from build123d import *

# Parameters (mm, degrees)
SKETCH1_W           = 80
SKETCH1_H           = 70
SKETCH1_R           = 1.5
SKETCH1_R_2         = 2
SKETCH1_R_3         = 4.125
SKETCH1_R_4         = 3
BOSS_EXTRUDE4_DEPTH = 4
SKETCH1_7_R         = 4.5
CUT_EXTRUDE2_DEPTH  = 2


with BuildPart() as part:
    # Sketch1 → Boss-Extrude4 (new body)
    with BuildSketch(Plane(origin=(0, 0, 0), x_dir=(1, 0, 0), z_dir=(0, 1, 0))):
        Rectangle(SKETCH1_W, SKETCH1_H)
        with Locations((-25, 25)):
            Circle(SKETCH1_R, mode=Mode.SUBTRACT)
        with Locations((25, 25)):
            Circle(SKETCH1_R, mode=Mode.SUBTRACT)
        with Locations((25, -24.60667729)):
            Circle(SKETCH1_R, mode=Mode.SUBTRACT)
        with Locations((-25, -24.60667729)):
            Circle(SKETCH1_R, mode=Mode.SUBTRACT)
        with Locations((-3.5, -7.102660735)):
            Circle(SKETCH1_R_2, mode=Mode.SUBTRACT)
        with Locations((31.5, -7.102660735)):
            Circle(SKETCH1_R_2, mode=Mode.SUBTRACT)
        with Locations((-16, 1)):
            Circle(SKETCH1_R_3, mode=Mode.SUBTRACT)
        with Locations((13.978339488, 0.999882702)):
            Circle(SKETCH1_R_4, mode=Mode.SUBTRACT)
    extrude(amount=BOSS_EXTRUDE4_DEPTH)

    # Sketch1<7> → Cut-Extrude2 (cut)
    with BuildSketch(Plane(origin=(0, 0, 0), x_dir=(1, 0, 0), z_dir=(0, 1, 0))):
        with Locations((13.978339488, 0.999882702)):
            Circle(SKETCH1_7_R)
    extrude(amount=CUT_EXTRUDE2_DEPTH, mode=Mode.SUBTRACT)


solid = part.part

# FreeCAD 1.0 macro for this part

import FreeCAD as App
import Part
import Sketcher

doc = App.newDocument("Part")
body = doc.addObject("PartDesign::Body", "Body")

# Sketch on XZ plane
sketch1 = body.newObject("Sketcher::SketchObject", "Sketch")
sketch1.AttachmentSupport = (doc.getObject("XZ_Plane"), [""])
sketch1.MapMode = "FlatFace"
sketch1.addGeometry([
    Part.LineSegment(App.Vector(-40, -35, 0), App.Vector(-40, 35, 0)),  # 0
    Part.LineSegment(App.Vector(-40, 35, 0), App.Vector(40, 35, 0)),  # 1
    Part.LineSegment(App.Vector(40, 35, 0), App.Vector(40, -35, 0)),  # 2
    Part.LineSegment(App.Vector(40, -35, 0), App.Vector(-40, -35, 0)),  # 3
    Part.Circle(App.Vector(-25, 24.6, 0), App.Vector(0, 0, 1), 1.5),  # 4
    Part.Circle(App.Vector(-3.5, 7.1, 0), App.Vector(0, 0, 1), 2),  # 5
    Part.Circle(App.Vector(25, 24.6, 0), App.Vector(0, 0, 1), 1.5),  # 6
    Part.Circle(App.Vector(31.5, 7.1, 0), App.Vector(0, 0, 1), 2),  # 7
    Part.Circle(App.Vector(-16, -1, 0), App.Vector(0, 0, 1), 4.1),  # 8
    Part.Circle(App.Vector(-25, -25, 0), App.Vector(0, 0, 1), 1.5),  # 9
    Part.Circle(App.Vector(14, -1, 0), App.Vector(0, 0, 1), 3),  # 10
    Part.Circle(App.Vector(25, -25, 0), App.Vector(0, 0, 1), 1.5),  # 11
], False)
sketch1.addConstraint([
    Sketcher.Constraint("Coincident", 0, 2, 1, 1),
    Sketcher.Constraint("Coincident", 1, 2, 2, 1),
    Sketcher.Constraint("Coincident", 2, 2, 3, 1),
    Sketcher.Constraint("Coincident", 3, 2, 0, 1),
    Sketcher.Constraint("Vertical", 0),
    Sketcher.Constraint("Horizontal", 1),
    Sketcher.Constraint("Vertical", 2),
    Sketcher.Constraint("Horizontal", 3),
    Sketcher.Constraint("Equal", 4, 6),
    Sketcher.Constraint("Equal", 5, 7),
    Sketcher.Constraint("Equal", 6, 9),
    Sketcher.Constraint("Equal", 9, 11),
    Sketcher.Constraint("Symmetric", 0, 2, 2, 2, -1, 1),
    Sketcher.Constraint("Symmetric", 4, 3, 6, 3, -2),
    Sketcher.Constraint("Symmetric", 9, 3, 11, 3, -2),
    Sketcher.Constraint("Horizontal", 5, 3, 7, 3),
    Sketcher.Constraint("Vertical", 4, 3, 9, 3),
    Sketcher.Constraint("Diameter", 4, 3.0),
    Sketcher.Constraint("Diameter", 5, 4.0),
    Sketcher.Constraint("Diameter", 10, 6.0),
    Sketcher.Constraint("Diameter", 8, 8.25),
    Sketcher.Constraint("DistanceX", 1, 1, 1, 2, 80.0),
    Sketcher.Constraint("DistanceY", 0, 1, 0, 2, 70.0),
    Sketcher.Constraint("DistanceX", 4, 3, -1, 1, 25.0),
    Sketcher.Constraint("DistanceX", 8, 3, -1, 1, 16.0),
    Sketcher.Constraint("DistanceY", 8, 3, -1, 1, 1.0),
    Sketcher.Constraint("DistanceY", 9, 3, -1, 1, 25.0),
    Sketcher.Constraint("DistanceX", 5, 3, 7, 3, 35.0),
    Sketcher.Constraint("DistanceX", 5, 3, -1, 1, 3.5),
    Sketcher.Constraint("DistanceY", -1, 1, 5, 3, 7.102661),
    Sketcher.Constraint("DistanceX", -1, 1, 10, 3, 13.978339),
    Sketcher.Constraint("DistanceY", 10, 3, 6, 3, 25.60656),
    Sketcher.Constraint("DistanceY", -1, 1, 4, 3, 24.606677),
])
pad1 = body.newObject("PartDesign::Pad", "Pad")
pad1.Profile = sketch1
pad1.Length = 4
pad1.Reversed = True

# Sketch on XZ plane
sketch2 = body.newObject("Sketcher::SketchObject", "Sketch001")
sketch2.AttachmentSupport = (doc.getObject("XZ_Plane"), [""])
sketch2.MapMode = "FlatFace"
sketch2.addGeometry(Part.Circle(App.Vector(14, -1, 0), App.Vector(0, 0, 1), 4.5), False)
sketch2.addConstraint([
    Sketcher.Constraint("Diameter", 0, 9.0),
    Sketcher.Constraint("DistanceX", -1, 1, 0, 3, 13.978339),
    Sketcher.Constraint("DistanceY", 0, 3, -1, 1, 0.999883),
])
pocket1 = body.newObject("PartDesign::Pocket", "Pocket")
pocket1.Profile = sketch2
pocket1.Length = 2

doc.recompute()
